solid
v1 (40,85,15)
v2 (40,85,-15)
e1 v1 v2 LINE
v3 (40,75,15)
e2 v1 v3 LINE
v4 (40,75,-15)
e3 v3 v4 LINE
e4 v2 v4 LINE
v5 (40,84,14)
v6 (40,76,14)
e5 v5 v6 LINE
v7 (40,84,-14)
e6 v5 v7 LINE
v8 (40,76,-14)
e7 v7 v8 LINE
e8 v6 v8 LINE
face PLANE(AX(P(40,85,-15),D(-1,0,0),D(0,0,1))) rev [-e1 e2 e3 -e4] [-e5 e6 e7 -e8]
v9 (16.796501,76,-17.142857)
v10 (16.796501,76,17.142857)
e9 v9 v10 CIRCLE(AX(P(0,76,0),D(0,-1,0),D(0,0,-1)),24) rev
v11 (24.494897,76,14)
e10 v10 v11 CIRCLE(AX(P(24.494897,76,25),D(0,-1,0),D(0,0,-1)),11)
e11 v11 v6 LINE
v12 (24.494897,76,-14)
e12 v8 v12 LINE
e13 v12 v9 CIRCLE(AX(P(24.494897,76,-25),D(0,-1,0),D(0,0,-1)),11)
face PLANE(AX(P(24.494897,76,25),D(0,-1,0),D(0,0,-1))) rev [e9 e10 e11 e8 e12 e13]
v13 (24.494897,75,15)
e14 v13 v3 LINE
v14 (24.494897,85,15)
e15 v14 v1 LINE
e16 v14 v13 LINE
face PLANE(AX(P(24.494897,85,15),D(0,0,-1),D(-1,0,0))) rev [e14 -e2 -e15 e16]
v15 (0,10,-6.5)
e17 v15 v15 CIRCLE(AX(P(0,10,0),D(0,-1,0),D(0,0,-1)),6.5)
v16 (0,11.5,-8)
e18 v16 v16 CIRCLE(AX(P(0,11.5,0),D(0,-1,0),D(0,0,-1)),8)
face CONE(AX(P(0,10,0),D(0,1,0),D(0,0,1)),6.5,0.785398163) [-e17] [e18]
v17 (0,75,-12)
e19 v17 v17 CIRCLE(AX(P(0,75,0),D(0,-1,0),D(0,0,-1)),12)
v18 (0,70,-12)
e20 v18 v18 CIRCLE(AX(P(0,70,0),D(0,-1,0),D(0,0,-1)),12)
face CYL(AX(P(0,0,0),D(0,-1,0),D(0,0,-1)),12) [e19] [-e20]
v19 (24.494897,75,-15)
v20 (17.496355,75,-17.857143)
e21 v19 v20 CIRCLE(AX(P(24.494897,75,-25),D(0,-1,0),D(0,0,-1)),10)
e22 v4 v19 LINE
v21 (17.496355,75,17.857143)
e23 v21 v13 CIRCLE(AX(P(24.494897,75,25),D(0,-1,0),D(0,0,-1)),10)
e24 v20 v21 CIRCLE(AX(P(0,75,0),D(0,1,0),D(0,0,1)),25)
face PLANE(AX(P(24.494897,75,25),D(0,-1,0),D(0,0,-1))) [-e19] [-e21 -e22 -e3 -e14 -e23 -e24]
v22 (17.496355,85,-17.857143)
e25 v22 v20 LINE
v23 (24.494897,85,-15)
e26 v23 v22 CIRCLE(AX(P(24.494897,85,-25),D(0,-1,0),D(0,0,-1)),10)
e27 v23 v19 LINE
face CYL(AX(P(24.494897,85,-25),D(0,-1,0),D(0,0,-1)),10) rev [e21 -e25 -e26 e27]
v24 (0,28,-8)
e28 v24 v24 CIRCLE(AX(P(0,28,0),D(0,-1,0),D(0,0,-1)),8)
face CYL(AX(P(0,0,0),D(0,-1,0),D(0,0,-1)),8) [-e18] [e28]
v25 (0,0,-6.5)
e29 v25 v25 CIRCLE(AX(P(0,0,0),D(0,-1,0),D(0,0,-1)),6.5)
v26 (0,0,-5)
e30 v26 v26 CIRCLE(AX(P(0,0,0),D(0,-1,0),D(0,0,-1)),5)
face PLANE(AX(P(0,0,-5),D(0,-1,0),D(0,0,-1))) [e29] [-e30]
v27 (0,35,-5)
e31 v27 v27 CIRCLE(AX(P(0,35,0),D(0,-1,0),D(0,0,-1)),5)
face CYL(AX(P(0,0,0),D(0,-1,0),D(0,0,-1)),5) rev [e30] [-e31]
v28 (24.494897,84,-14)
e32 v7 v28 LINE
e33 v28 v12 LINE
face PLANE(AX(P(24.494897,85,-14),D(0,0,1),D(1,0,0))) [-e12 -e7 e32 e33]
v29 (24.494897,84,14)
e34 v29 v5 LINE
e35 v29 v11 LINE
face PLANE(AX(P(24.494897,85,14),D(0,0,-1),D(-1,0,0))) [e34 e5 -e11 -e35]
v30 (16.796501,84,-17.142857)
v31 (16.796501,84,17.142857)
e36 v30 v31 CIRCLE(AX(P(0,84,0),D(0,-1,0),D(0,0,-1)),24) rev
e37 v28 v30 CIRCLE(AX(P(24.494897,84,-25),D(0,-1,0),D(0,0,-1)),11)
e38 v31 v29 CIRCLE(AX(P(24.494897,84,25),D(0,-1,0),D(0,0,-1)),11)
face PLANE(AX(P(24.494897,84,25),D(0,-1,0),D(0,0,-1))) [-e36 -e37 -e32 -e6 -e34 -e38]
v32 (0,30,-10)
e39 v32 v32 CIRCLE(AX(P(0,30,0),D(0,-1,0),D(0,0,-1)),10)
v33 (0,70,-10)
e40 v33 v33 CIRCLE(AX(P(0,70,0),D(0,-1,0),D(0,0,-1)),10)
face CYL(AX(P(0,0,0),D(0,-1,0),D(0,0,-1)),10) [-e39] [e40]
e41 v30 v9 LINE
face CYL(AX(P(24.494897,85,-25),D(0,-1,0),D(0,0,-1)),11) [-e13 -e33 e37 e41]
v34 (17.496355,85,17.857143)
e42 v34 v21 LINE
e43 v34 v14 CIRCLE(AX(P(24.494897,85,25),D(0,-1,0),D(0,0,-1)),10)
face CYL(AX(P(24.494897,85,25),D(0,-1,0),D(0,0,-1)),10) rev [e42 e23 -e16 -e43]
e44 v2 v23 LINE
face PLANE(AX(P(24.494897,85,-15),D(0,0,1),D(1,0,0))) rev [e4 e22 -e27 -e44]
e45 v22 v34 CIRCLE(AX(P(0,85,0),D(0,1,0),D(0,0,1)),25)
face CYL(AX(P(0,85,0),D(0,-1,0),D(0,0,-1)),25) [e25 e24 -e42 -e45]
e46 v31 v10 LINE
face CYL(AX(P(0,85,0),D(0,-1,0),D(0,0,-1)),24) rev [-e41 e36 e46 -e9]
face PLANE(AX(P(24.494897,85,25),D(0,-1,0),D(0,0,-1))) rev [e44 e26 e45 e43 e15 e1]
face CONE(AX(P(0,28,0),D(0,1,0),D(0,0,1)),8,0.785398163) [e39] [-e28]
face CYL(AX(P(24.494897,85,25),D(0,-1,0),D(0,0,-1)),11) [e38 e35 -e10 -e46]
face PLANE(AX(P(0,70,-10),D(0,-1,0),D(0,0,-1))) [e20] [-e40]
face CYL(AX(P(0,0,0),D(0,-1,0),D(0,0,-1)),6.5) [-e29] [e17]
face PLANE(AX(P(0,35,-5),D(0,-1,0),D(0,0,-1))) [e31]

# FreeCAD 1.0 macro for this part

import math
import FreeCAD as App
import Part
import Sketcher
Q = App.Units.Quantity


def faces_at(feature, points):
    """Names of the faces that lie closest to the given points."""
    faces = feature.Shape.Faces
    near = lambda p: min(range(len(faces)), key=lambda i: faces[i].distToShape(Part.Vertex(*p))[0])
    return sorted({f"Face{near(p) + 1}" for p in points})


def add_polygon(sketch, points):
    """Adds a closed chain of lines whose ends are joined by coincident constraints."""
    first, n = sketch.GeometryCount, len(points)
    for a, b in zip(points, points[1:] + points[:1]):
        sketch.addGeometry(Part.LineSegment(App.Vector(*a, 0), App.Vector(*b, 0)), False)
    for i in range(n):
        sketch.addConstraint(Sketcher.Constraint("Coincident", first + i, 2, first + (i + 1) % n, 1))

doc = App.newDocument("Part")
body = doc.addObject("PartDesign::Body", "Body")

# Sketch on YZ plane
sketch1 = body.newObject("Sketcher::SketchObject", "Sketch")
sketch1.AttachmentSupport = (doc.getObject("YZ_Plane"), [""])
sketch1.MapMode = "FlatFace"
add_polygon(sketch1, [(0, -5), (0, -6.5), (10, -6.5), (11.5, -8), (28, -8), (30, -10), (70, -10), (70, -12), (75, -12), (75, 0), (35, 0), (35, -5)])  # lines 0-11
sketch1.addConstraint([
    Sketcher.Constraint("Vertical", 0),
    Sketcher.Constraint("Horizontal", 1),
    Sketcher.Constraint("Horizontal", 3),
    Sketcher.Constraint("Horizontal", 5),
    Sketcher.Constraint("Vertical", 6),
    Sketcher.Constraint("Horizontal", 7),
    Sketcher.Constraint("Vertical", 8),
    Sketcher.Constraint("Horizontal", 9),
    Sketcher.Constraint("Vertical", 10),
    Sketcher.Constraint("Horizontal", 11),
    Sketcher.Constraint("PointOnObject", 0, 2, -2),
    Sketcher.Constraint("PointOnObject", 8, 2, -1),
    Sketcher.Constraint("Parallel", 2, 4),
    Sketcher.Constraint("Equal", 5, 9),
    Sketcher.Constraint("Equal", 7, 10),
    Sketcher.Constraint("DistanceX", 1, 1, 1, 2, Q("10 mm")),
    Sketcher.Constraint("DistanceX", 5, 1, 5, 2, Q("40 mm")),
    Sketcher.Constraint("DistanceX", 7, 1, 7, 2, Q("5 mm")),
    Sketcher.Constraint("DistanceX", 11, 2, 11, 1, Q("35 mm")),
    Sketcher.Constraint("DistanceY", 6, 2, 6, 1, Q("2 mm")),
    Sketcher.Constraint("DistanceY", 8, 1, 8, 2, Q("12 mm")),
    Sketcher.Constraint("Angle", 2, Q("-45 deg")),
    Sketcher.Constraint("DistanceX", 3, 1, 3, 2, Q("16.5 mm")),
    Sketcher.Constraint("DistanceY", 2, 2, -1, 1, Q("8 mm")),
])
revolution = body.newObject("PartDesign::Revolution", "Revolution")
revolution.Profile = sketch1
revolution.ReferenceAxis = (sketch1, ["H_Axis"])
revolution.Angle = 360
body2 = doc.addObject("PartDesign::Body", "Body001")

# Sketch on XZ plane
sketch2 = body2.newObject("Sketcher::SketchObject", "Sketch001")
sketch2.AttachmentSupport = (doc.getObject("XZ_Plane001"), [""])
sketch2.MapMode = "FlatFace"
sketch2.AttachmentOffset = App.Placement(App.Vector(0, 0, -75), App.Rotation())
sketch2.addGeometry([
    Part.LineSegment(App.Vector(40, -15, 0), App.Vector(24, -15, 0)),  # 0
    Part.ArcOfCircle(Part.Circle(App.Vector(24, -25, 0), App.Vector(0, 0, 1), 10), math.radians(90), math.radians(134)),  # 1
    Part.ArcOfCircle(Part.Circle(App.Vector(0, 0, 0), App.Vector(0, 0, 1), 25), math.radians(46), math.radians(314)),  # 2
    Part.ArcOfCircle(Part.Circle(App.Vector(24, 25, 0), App.Vector(0, 0, 1), 10), math.radians(-134), math.radians(-90)),  # 3
    Part.LineSegment(App.Vector(24, 15, 0), App.Vector(40, 15, 0)),  # 4
    Part.LineSegment(App.Vector(40, 15, 0), App.Vector(40, -15, 0)),  # 5
], False)
sketch2.addConstraint([
    Sketcher.Constraint("Tangent", 0, 2, 1, 1),
    Sketcher.Constraint("Tangent", 1, 2, 2, 2),
    Sketcher.Constraint("Tangent", 2, 1, 3, 1),
    Sketcher.Constraint("Tangent", 3, 2, 4, 1),
    Sketcher.Constraint("Coincident", 4, 2, 5, 1),
    Sketcher.Constraint("Coincident", 5, 2, 0, 1),
    Sketcher.Constraint("Horizontal", 0),
    Sketcher.Constraint("Horizontal", 4),
    Sketcher.Constraint("Vertical", 5),
    Sketcher.Constraint("Coincident", 2, 3, -1, 1),
    Sketcher.Constraint("Equal", 1, 3),
    Sketcher.Constraint("Vertical", 1, 3, 3, 3),
    Sketcher.Constraint("Radius", 1, Q("10 mm")),
    Sketcher.Constraint("Radius", 2, Q("25 mm")),
    Sketcher.Constraint("DistanceY", 5, 2, 5, 1, Q("30 mm")),
    Sketcher.Constraint("DistanceX", -1, 1, 4, 2, Q("40 mm")),
])
pad1 = body2.newObject("PartDesign::Pad", "Pad")
pad1.Profile = sketch2
pad1.Length = 10
pad1.Reversed = True
doc.recompute()

thickness = body2.newObject("PartDesign::Thickness", "Thickness")
thickness.Base = (pad1, faces_at(pad1, [(40, 80, 0)]))
thickness.Value = 1
thickness.Reversed = True
thickness.Join = "Intersection"
doc.recompute()

boolean = body2.newObject("PartDesign::Boolean", "Boolean")
boolean.Type = "Fuse"
boolean.addObjects([body])

doc.recompute()
